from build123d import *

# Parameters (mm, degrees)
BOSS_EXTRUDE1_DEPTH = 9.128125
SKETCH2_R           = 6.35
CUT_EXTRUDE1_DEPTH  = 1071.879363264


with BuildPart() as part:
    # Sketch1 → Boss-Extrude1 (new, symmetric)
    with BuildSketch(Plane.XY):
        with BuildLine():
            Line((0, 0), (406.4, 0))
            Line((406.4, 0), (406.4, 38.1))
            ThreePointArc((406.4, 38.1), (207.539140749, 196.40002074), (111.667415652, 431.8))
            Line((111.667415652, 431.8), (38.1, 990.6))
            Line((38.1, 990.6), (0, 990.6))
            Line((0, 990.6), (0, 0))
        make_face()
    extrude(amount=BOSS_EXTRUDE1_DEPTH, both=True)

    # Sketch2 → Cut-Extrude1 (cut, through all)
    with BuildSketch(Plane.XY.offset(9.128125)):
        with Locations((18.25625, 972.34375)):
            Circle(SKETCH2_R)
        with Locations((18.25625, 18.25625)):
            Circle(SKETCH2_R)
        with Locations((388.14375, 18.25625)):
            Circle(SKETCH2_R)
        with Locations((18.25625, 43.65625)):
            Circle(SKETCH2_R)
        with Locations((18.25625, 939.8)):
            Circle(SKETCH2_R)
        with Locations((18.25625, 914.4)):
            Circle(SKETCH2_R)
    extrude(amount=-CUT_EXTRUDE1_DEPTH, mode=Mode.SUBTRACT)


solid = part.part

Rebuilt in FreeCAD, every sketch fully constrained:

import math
import FreeCAD as App
import Part
import Sketcher

V = App.Vector
Q = App.Units.Quantity

doc = App.newDocument("Part")
body = doc.addObject("PartDesign::Body", "Body")

# Sketch on XY plane
sketch1 = body.newObject("Sketcher::SketchObject", "Sketch")
sketch1.AttachmentSupport = (doc.getObject("XY_Plane"), [""])
sketch1.MapMode = "FlatFace"
sketch1.addGeometry(Part.LineSegment(V(0, 0, 0), V(406, 0, 0)), False)
sketch1.addGeometry(Part.LineSegment(V(406, 0, 0), V(406, 38, 0)), False)
sketch1.addGeometry(Part.ArcOfCircle(Part.Circle(V(610, 497, 0), V(0, 0, 1), 502), math.radians(-172), math.radians(-114)), False)
sketch1.addGeometry(Part.LineSegment(V(112, 432, 0), V(38, 991, 0)), False)
sketch1.addGeometry(Part.LineSegment(V(38, 991, 0), V(0, 991, 0)), False)
sketch1.addGeometry(Part.LineSegment(V(0, 991, 0), V(0, 0, 0)), False)
sketch1.addConstraint(Sketcher.Constraint("Coincident", 0, 2, 1, 1))
sketch1.addConstraint(Sketcher.Constraint("Coincident", 1, 2, 2, 2))
sketch1.addConstraint(Sketcher.Constraint("Tangent", 2, 1, 3, 1))
sketch1.addConstraint(Sketcher.Constraint("Coincident", 3, 2, 4, 1))
sketch1.addConstraint(Sketcher.Constraint("Coincident", 4, 2, 5, 1))
sketch1.addConstraint(Sketcher.Constraint("Coincident", 5, 2, 0, 1))
sketch1.addConstraint(Sketcher.Constraint("Horizontal", 0))
sketch1.addConstraint(Sketcher.Constraint("Vertical", 1))
sketch1.addConstraint(Sketcher.Constraint("Horizontal", 4))
sketch1.addConstraint(Sketcher.Constraint("Vertical", 5))
sketch1.addConstraint(Sketcher.Constraint("Coincident", 5, 2, -1, 1))
sketch1.addConstraint(Sketcher.Constraint("Equal", 4, 1))
sketch1.addConstraint(Sketcher.Constraint("DistanceX", 0, 1, 0, 2, Q("16 in")))
sketch1.addConstraint(Sketcher.Constraint("DistanceY", 5, 2, 5, 1, Q("39 in")))
sketch1.addConstraint(Sketcher.Constraint("DistanceX", 4, 2, 4, 1, Q("1.5 in")))
sketch1.addConstraint(Sketcher.Constraint("Angle", 3, Q("97.5 deg")))
sketch1.addConstraint(Sketcher.Constraint("Radius", 2, 502.167655))
pad1 = body.newObject("PartDesign::Pad", "Pad")
pad1.Profile = sketch1
pad1.Length = Q("0.71875 in")
pad1.Midplane = True

# Sketch on XY plane
sketch2 = body.newObject("Sketcher::SketchObject", "Sketch001")
sketch2.AttachmentSupport = (doc.getObject("XY_Plane"), [""])
sketch2.MapMode = "FlatFace"
sketch2.AttachmentOffset = App.Placement(V(0, 0, 0.359375 * 25.4), App.Rotation())
sketch2.addGeometry(Part.Circle(V(18, 972, 0), V(0, 0, 1), 6), False)
sketch2.addGeometry(Part.Circle(V(18, 18, 0), V(0, 0, 1), 6), False)
sketch2.addGeometry(Part.Circle(V(388, 18, 0), V(0, 0, 1), 6), False)
sketch2.addGeometry(Part.Circle(V(18, 44, 0), V(0, 0, 1), 6), False)
sketch2.addGeometry(Part.Circle(V(18, 940, 0), V(0, 0, 1), 6), False)
sketch2.addGeometry(Part.Circle(V(18, 914, 0), V(0, 0, 1), 6), False)
sketch2.addConstraint(Sketcher.Constraint("Equal", 0, 1))
sketch2.addConstraint(Sketcher.Constraint("Equal", 1, 2))
sketch2.addConstraint(Sketcher.Constraint("Equal", 2, 3))
sketch2.addConstraint(Sketcher.Constraint("Equal", 3, 4))
sketch2.addConstraint(Sketcher.Constraint("Equal", 4, 5))
sketch2.addConstraint(Sketcher.Constraint("Horizontal", 1, 3, 2, 3))
sketch2.addConstraint(Sketcher.Constraint("Vertical", 0, 3, 1, 3))
sketch2.addConstraint(Sketcher.Constraint("Vertical", 1, 3, 3, 3))
sketch2.addConstraint(Sketcher.Constraint("Vertical", 3, 3, 4, 3))
sketch2.addConstraint(Sketcher.Constraint("Vertical", 4, 3, 5, 3))
sketch2.addConstraint(Sketcher.Constraint("Diameter", 0, Q("0.5 in")))
sketch2.addConstraint(Sketcher.Constraint("DistanceY", -1, 1, 4, 3, Q("37 in")))
sketch2.addConstraint(Sketcher.Constraint("DistanceY", -1, 1, 5, 3, Q("36 in")))
sketch2.addConstraint(Sketcher.Constraint("DistanceY", 1, 3, 3, 3, Q("1 in")))
sketch2.addConstraint(Sketcher.Constraint("DistanceX", -1, 1, 0, 3, Q("0.71875 in")))
sketch2.addConstraint(Sketcher.Constraint("DistanceY", -1, 1, 0, 3, Q("38.28125 in")))
sketch2.addConstraint(Sketcher.Constraint("DistanceY", -1, 1, 1, 3, Q("0.71875 in")))
sketch2.addConstraint(Sketcher.Constraint("DistanceX", -1, 1, 2, 3, Q("15.28125 in")))
pocket1 = body.newObject("PartDesign::Pocket", "Pocket")
pocket1.Profile = sketch2
pocket1.Type = "ThroughAll"

doc.recompute()
